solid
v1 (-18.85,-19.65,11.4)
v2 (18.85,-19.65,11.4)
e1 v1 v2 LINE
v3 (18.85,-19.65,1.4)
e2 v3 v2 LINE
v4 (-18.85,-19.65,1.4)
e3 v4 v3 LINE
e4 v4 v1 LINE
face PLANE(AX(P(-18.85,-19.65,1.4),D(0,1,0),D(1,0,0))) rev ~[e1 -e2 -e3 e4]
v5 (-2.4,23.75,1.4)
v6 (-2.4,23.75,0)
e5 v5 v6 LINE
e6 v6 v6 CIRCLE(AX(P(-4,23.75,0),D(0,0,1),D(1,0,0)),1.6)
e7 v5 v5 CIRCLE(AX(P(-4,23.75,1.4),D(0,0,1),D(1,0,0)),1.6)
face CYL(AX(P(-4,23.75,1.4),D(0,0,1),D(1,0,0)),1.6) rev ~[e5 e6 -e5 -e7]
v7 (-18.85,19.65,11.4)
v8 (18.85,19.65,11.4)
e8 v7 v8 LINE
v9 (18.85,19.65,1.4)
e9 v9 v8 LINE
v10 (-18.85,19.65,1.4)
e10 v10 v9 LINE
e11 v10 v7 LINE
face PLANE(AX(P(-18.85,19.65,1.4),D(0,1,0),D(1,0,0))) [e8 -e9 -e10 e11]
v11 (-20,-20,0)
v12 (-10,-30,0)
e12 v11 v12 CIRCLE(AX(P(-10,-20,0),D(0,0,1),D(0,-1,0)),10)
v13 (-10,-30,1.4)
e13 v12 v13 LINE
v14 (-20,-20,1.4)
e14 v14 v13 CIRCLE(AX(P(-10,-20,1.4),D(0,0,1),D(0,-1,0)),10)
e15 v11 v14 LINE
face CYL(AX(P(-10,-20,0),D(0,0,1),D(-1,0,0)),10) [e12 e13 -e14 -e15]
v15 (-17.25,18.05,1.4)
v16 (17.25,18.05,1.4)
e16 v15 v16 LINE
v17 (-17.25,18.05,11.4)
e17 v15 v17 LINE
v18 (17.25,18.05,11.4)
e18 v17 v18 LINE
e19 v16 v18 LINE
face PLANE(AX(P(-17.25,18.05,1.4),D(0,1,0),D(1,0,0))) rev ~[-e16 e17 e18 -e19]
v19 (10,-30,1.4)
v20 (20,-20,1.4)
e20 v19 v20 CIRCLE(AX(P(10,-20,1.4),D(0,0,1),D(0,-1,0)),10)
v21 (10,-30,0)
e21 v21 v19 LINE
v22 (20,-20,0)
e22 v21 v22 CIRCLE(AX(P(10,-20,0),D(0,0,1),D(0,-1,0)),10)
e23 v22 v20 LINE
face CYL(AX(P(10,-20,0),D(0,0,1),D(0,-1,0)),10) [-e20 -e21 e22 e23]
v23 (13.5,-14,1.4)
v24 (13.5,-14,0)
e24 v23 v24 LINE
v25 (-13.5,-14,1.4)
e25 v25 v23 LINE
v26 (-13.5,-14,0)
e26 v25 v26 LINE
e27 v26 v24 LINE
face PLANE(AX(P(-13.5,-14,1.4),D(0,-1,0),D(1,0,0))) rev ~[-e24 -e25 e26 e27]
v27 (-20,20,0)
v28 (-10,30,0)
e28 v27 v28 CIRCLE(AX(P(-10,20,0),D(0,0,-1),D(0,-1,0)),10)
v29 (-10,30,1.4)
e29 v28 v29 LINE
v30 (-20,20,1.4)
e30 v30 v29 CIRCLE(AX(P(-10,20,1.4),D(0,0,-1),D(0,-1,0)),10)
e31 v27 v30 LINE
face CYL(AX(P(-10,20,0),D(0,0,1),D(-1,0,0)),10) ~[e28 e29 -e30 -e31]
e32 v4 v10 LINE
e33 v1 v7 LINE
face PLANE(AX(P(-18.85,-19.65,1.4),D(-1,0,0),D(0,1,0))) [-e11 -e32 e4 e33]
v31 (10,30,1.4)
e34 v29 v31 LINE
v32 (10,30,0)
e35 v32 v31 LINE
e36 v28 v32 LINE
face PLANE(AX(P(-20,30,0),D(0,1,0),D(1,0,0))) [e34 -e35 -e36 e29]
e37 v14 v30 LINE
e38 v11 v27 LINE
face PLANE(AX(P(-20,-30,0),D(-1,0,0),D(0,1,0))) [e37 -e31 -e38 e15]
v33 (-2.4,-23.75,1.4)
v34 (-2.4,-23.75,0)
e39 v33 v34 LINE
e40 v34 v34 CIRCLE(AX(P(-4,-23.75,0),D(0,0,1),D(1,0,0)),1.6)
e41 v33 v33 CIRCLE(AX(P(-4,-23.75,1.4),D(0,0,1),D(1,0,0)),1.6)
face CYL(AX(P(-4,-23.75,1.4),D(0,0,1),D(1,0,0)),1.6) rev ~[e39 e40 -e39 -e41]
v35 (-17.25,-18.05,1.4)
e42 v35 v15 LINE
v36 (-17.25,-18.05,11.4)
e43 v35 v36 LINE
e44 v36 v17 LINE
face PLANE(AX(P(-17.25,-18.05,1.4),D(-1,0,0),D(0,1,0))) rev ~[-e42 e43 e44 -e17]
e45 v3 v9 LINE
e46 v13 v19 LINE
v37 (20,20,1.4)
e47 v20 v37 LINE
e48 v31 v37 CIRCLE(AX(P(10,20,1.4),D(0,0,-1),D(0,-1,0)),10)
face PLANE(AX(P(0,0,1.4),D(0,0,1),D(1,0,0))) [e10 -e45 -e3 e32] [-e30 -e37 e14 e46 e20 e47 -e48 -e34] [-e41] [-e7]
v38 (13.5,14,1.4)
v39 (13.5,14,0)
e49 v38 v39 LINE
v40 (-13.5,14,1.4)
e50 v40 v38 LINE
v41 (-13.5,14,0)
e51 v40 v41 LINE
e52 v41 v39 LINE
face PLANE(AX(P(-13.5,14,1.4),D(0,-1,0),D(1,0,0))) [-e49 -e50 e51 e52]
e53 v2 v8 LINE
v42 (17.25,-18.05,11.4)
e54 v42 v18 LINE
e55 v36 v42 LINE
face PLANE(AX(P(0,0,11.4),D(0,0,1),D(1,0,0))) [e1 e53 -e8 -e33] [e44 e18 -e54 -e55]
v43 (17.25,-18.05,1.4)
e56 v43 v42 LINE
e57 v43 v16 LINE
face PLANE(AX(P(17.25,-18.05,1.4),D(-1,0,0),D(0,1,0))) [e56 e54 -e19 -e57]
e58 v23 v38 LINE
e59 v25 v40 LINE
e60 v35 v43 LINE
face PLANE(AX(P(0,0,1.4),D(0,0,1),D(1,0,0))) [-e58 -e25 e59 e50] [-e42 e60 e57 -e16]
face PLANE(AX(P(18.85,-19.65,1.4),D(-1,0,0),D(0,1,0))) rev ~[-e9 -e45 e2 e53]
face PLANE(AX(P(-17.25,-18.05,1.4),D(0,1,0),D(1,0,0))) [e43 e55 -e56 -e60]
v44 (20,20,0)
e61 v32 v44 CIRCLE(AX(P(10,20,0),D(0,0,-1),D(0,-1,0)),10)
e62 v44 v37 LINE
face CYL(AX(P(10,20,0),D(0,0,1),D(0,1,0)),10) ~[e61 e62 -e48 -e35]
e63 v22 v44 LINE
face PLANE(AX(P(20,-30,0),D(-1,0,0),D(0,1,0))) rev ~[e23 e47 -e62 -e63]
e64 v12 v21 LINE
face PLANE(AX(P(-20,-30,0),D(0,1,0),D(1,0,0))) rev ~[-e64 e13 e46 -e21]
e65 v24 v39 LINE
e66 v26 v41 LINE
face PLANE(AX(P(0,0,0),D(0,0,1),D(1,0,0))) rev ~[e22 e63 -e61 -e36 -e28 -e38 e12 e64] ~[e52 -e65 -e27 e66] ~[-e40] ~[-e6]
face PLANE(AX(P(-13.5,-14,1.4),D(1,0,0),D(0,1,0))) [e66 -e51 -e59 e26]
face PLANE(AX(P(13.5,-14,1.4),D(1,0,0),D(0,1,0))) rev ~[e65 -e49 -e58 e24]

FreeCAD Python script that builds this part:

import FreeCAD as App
import Part
import Sketcher
from FreeCAD import Vector
Q = App.Units.Quantity


def edges_at(feature, points):
    """Names of the edges that pass closest to the given points."""
    edges = feature.Shape.Edges
    near = lambda p: min(range(len(edges)), key=lambda i: edges[i].distToShape(Part.Vertex(*p))[0])
    return sorted({f"Edge{near(p) + 1}" for p in points})


def add_polygon(sketch, points):
    """Adds a closed chain of lines whose ends are joined by coincident constraints."""
    first, n = sketch.GeometryCount, len(points)
    for a, b in zip(points, points[1:] + points[:1]):
        sketch.addGeometry(Part.LineSegment(App.Vector(*a, 0), App.Vector(*b, 0)), False)
    for i in range(n):
        sketch.addConstraint(Sketcher.Constraint("Coincident", first + i, 2, first + (i + 1) % n, 1))

doc = App.newDocument("Part")
body = doc.addObject("PartDesign::Body", "Body")

sketch1 = body.newObject("Sketcher::SketchObject", "Sketch")
sketch1.AttachmentSupport = (doc.getObject("XY_Plane"), [""])
sketch1.MapMode = "FlatFace"
add_polygon(sketch1, [(-20, 30), (-20, -30), (20, -30), (20, 30)])
sketch1.addConstraint([
    Sketcher.Constraint("Vertical", 0),
    Sketcher.Constraint("Horizontal", 1),
    Sketcher.Constraint("Vertical", 2),
    Sketcher.Constraint("Horizontal", 3),
    Sketcher.Constraint("Symmetric", 0, 2, 2, 2, -1, 1),
    Sketcher.Constraint("DistanceX", 1, 1, 1, 2, Q("40 mm")),
    Sketcher.Constraint("DistanceY", 0, 2, 0, 1, Q("60 mm")),
])
pad1 = body.newObject("PartDesign::Pad", "Pad")
pad1.Profile = sketch1
pad1.Length = 1.4

sketch2 = body.newObject("Sketcher::SketchObject", "Sketch001")
sketch2.AttachmentSupport = (doc.getObject("XY_Plane"), [""])
sketch2.MapMode = "FlatFace"
sketch2.AttachmentOffset = App.Placement(Vector(0, 0, 1.4), App.Rotation())
add_polygon(sketch2, [(-19, 20), (-19, -20), (19, -20), (19, 20)])
add_polygon(sketch2, [(17, -18), (-17, -18), (-17, 18), (17, 18)])
sketch2.addConstraint([
    Sketcher.Constraint("Vertical", 0),
    Sketcher.Constraint("Horizontal", 1),
    Sketcher.Constraint("Vertical", 2),
    Sketcher.Constraint("Horizontal", 3),
    Sketcher.Constraint("Horizontal", 4),
    Sketcher.Constraint("Vertical", 5),
    Sketcher.Constraint("Horizontal", 6),
    Sketcher.Constraint("Vertical", 7),
    Sketcher.Constraint("Symmetric", 0, 2, 2, 2, -1, 1),
    Sketcher.Constraint("Symmetric", 4, 2, 6, 2, -1, 1),
    Sketcher.Constraint("DistanceX", 1, 1, 1, 2, Q("37.7 mm")),
    Sketcher.Constraint("DistanceX", 4, 2, 4, 1, Q("34.5 mm")),
    Sketcher.Constraint("DistanceY", 0, 2, 0, 1, Q("39.3 mm")),
    Sketcher.Constraint("DistanceY", 5, 1, 5, 2, Q("36.1 mm")),
])
pad2 = body.newObject("PartDesign::Pad", "Pad001")
pad2.Profile = sketch2
pad2.Length = 10

sketch3 = body.newObject("Sketcher::SketchObject", "Sketch002")
sketch3.AttachmentSupport = (doc.getObject("XY_Plane"), [""])
sketch3.MapMode = "FlatFace"
sketch3.AttachmentOffset = App.Placement(Vector(0, 0, 1.4), App.Rotation())
sketch3.addGeometry(Part.Circle(Vector(-4, 23.8, 0), Vector(0, 0, 1), 1.6), False)
sketch3.addGeometry(Part.Circle(Vector(-4, -23.8, 0), Vector(0, 0, 1), 1.6), False)
add_polygon(sketch3, [(-13.5, 14), (-13.5, -14), (13.5, -14), (13.5, 14)])
sketch3.addConstraint([
    Sketcher.Constraint("Vertical", 2),
    Sketcher.Constraint("Horizontal", 3),
    Sketcher.Constraint("Vertical", 4),
    Sketcher.Constraint("Horizontal", 5),
    Sketcher.Constraint("Equal", 0, 1),
    Sketcher.Constraint("Symmetric", 2, 2, 4, 2, -1, 1),
    Sketcher.Constraint("Symmetric", 0, 3, 1, 3, -1),
    Sketcher.Constraint("Diameter", 0, Q("3.2 mm")),
    Sketcher.Constraint("DistanceX", 3, 1, 3, 2, Q("27 mm")),
    Sketcher.Constraint("DistanceY", 2, 2, 2, 1, Q("28 mm")),
    Sketcher.Constraint("DistanceX", 0, 3, -1, 1, Q("4 mm")),
    Sketcher.Constraint("DistanceY", 1, 3, 0, 3, Q("47.5 mm")),
])
pocket1 = body.newObject("PartDesign::Pocket", "Pocket")
pocket1.Profile = sketch3
pocket1.Type = "ThroughAll"
doc.recompute()

fillet = body.newObject("PartDesign::Fillet", "Fillet")
fillet.Base = (pocket1, edges_at(pocket1, [
    (-20, -30, 0.7),
    (20, -30, 0.7),
    (20, 30, 0.7),
    (-20, 30, 0.7),
]))
fillet.Radius = 10

doc.recompute()
